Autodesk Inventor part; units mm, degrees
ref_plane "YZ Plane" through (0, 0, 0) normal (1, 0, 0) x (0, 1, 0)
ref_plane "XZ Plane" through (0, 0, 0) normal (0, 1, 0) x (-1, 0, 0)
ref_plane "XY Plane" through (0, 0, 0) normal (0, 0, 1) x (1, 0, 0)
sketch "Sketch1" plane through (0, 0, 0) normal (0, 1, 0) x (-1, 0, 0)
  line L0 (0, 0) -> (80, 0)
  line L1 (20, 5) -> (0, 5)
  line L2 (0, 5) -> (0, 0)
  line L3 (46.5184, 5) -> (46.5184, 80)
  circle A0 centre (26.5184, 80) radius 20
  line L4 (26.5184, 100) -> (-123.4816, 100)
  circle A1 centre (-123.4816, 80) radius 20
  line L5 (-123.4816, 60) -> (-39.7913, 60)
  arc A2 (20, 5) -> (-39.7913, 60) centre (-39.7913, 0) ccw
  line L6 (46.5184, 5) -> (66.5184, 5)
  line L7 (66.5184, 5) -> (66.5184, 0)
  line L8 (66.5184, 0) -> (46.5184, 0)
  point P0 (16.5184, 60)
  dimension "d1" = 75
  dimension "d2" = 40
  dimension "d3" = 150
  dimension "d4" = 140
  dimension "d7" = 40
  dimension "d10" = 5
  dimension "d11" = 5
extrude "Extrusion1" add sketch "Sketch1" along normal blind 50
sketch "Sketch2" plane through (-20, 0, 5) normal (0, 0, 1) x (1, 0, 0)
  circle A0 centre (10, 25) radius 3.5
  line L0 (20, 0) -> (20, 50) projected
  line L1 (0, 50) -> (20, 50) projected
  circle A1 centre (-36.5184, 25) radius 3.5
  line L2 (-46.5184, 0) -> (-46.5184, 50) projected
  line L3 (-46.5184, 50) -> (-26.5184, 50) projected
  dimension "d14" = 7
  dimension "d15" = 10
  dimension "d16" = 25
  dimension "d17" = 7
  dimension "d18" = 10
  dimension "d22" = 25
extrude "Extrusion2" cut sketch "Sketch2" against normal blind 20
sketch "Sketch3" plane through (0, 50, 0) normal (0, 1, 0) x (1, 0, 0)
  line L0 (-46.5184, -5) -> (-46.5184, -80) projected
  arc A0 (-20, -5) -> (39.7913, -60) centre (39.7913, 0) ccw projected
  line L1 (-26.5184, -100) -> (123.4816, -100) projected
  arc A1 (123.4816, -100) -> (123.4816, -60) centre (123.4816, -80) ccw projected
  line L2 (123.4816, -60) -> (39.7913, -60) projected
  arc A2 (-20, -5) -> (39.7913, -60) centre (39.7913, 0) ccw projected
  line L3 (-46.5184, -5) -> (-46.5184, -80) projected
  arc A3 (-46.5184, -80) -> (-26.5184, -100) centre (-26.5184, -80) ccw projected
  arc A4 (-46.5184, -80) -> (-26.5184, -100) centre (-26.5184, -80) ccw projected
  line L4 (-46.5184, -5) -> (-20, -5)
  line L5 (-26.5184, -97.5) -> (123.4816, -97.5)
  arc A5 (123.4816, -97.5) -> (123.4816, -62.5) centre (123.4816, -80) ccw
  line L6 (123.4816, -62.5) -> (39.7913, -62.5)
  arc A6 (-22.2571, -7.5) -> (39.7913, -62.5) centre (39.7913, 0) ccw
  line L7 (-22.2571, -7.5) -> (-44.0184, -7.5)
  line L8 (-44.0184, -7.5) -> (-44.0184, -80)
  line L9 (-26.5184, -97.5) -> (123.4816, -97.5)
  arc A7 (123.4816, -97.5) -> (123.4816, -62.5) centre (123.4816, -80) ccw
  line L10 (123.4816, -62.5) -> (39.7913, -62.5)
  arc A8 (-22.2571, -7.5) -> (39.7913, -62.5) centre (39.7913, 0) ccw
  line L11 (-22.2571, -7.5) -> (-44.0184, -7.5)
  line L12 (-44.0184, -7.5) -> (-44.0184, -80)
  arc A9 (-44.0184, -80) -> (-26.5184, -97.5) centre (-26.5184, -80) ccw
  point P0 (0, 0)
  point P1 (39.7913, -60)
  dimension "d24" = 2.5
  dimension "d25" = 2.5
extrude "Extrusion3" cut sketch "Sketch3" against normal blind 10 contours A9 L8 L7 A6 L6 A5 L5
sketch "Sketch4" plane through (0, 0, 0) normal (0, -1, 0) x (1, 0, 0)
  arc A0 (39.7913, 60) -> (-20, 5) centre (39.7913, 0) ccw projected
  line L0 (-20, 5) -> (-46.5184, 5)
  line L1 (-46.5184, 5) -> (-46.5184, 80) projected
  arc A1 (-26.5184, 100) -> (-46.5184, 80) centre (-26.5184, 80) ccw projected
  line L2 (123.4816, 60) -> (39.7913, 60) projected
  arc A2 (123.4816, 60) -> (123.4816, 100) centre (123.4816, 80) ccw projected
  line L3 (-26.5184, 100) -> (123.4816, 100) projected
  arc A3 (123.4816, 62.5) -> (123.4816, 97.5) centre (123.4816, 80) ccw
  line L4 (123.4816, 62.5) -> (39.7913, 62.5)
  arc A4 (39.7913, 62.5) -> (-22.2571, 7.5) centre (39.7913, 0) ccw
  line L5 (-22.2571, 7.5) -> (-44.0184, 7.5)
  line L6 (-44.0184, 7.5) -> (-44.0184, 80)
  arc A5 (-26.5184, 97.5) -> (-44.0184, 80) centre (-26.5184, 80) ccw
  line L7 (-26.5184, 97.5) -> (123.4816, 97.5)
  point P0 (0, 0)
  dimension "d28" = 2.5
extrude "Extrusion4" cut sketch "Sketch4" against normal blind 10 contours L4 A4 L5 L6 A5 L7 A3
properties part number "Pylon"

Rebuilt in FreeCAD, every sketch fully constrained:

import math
import FreeCAD as App
import Part
import Sketcher
from FreeCAD import Vector
Q = App.Units.Quantity

doc = App.newDocument("Part")
params = doc.addObject("Spreadsheet::Sheet", "Params")
for row, (alias, value) in enumerate([
    ("sketch1_radius", "20 mm"),
    ("sketch1_width", "150 mm"),
    ("sketch1_height", "5 mm"),
    ("sketch1_height2", "75 mm"),
    ("pad1_length", "50 mm"),
    ("sketch2_diameter", "7 mm"),
    ("pocket1_length", "20 mm"),
    ("sketch3_radius", "17.5 mm"),
    ("sketch3_radius2", "62.5 mm"),
    ("sketch3_width", "150 mm"),
    ("sketch3_height", "72.5 mm"),
    ("pocket2_length", "10 mm"),
    ("sketch4_radius", "17.5 mm"),
    ("sketch4_radius2", "62.5 mm"),
    ("sketch4_width", "150 mm"),
    ("sketch4_height", "72.5 mm"),
    ("pocket3_length", "10 mm"),
], start=1):
    params.set(f"A{row}", alias)
    params.set(f"B{row}", "=" + value)
    params.setAlias(f"B{row}", alias)

body = doc.addObject("PartDesign::Body", "Body")

# Sketch on XZ plane
sketch1 = doc.addObject("Sketcher::SketchObject", "Sketch")
body.addObject(sketch1)
sketch1.AttachmentSupport = (doc.XZ_Plane, [""])
sketch1.MapMode = "FlatFace"
sketch1.addGeometry([
    Part.LineSegment(Vector(0, 5, 0), Vector(0, 0, 0)),  # 0
    Part.LineSegment(Vector(0, 0, 0), Vector(-66.5184, 0, 0)),  # 1
    Part.LineSegment(Vector(-66.5184, 0, 0), Vector(-66.5184, 5, 0)),  # 2
    Part.LineSegment(Vector(-66.5184, 5, 0), Vector(-46.5184, 5, 0)),  # 3
    Part.LineSegment(Vector(-46.5184, 5, 0), Vector(-46.5184, 80, 0)),  # 4
    Part.ArcOfCircle(Part.Circle(Vector(-26.5184, 80, 0), Vector(0, 0, 1), 20), math.radians(90), math.radians(180)),  # 5
    Part.LineSegment(Vector(-26.5184, 100, 0), Vector(123.4816, 100, 0)),  # 6
    Part.ArcOfCircle(Part.Circle(Vector(123.4816, 80, 0), Vector(0, 0, 1), 20), math.radians(-90), math.radians(90)),  # 7
    Part.LineSegment(Vector(123.4816, 60, 0), Vector(39.7913, 60, 0)),  # 8
    Part.ArcOfCircle(Part.Circle(Vector(39.7913, 0, 0), Vector(0, 0, 1), 59.999996), math.radians(90), math.radians(175.219808)),  # 9
    Part.LineSegment(Vector(-20, 5, 0), Vector(0, 5, 0)),  # 10
], False)
sketch1.addConstraint([
    Sketcher.Constraint("Coincident", 0, 2, 1, 1),
    Sketcher.Constraint("Coincident", 1, 2, 2, 1),
    Sketcher.Constraint("Coincident", 2, 2, 3, 1),
    Sketcher.Constraint("Coincident", 3, 2, 4, 1),
    Sketcher.Constraint("Tangent", 4, 2, 5, 2),
    Sketcher.Constraint("Tangent", 5, 1, 6, 1),
    Sketcher.Constraint("Tangent", 6, 2, 7, 2),
    Sketcher.Constraint("Tangent", 7, 1, 8, 1),
    Sketcher.Constraint("Tangent", 8, 2, 9, 1),
    Sketcher.Constraint("Coincident", 9, 2, 10, 1),
    Sketcher.Constraint("Coincident", 10, 2, 0, 1),
    Sketcher.Constraint("Vertical", 0),
    Sketcher.Constraint("Horizontal", 1),
    Sketcher.Constraint("Vertical", 2),
    Sketcher.Constraint("Horizontal", 3),
    Sketcher.Constraint("Vertical", 4),
    Sketcher.Constraint("Horizontal", 6),
    Sketcher.Constraint("Horizontal", 8),
    Sketcher.Constraint("Horizontal", 10),
    Sketcher.Constraint("Coincident", 0, 2, -1, 1),
    Sketcher.Constraint("Equal", 5, 7),
    Sketcher.Constraint("PointOnObject", 9, 3, -1),
    Sketcher.Constraint("Horizontal", 3, 2, 9, 2),
    Sketcher.Constraint("Equal", 3, 10),
    Sketcher.Constraint("Radius", 5, Q("20 mm")),
    Sketcher.Constraint("DistanceX", 6, 1, 6, 2, Q("150 mm")),
    Sketcher.Constraint("DistanceY", 0, 2, 0, 1, Q("5 mm")),
    Sketcher.Constraint("DistanceY", 4, 1, 4, 2, Q("75 mm")),
    Sketcher.Constraint("DistanceX", 1, 2, 5, 3, Q("40 mm")),
    Sketcher.Constraint("DistanceX", 1, 2, 1, 1, Q("66.5184 mm")),
])
sketch1.setExpression("Constraints[24]", "Params.sketch1_radius")
sketch1.setExpression("Constraints[25]", "Params.sketch1_width")
sketch1.setExpression("Constraints[26]", "Params.sketch1_height")
sketch1.setExpression("Constraints[27]", "Params.sketch1_height2")
pad1 = doc.addObject("PartDesign::Pad", "Pad")
body.addObject(pad1)
pad1.Profile = sketch1
pad1.setExpression("Length", "Params.pad1_length")
pad1.Reversed = True

# Sketch on XY plane
sketch2 = doc.addObject("Sketcher::SketchObject", "Sketch001")
body.addObject(sketch2)
sketch2.AttachmentSupport = (doc.XY_Plane, [""])
sketch2.MapMode = "FlatFace"
sketch2.AttachmentOffset = App.Placement(Vector(0, 0, 5), App.Rotation())
sketch2.addGeometry([
    Part.Circle(Vector(-10, 25, 0), Vector(0, 0, 1), 3.5),
    Part.Circle(Vector(-56.5184, 25, 0), Vector(0, 0, 1), 3.5),
], False)
sketch2.addConstraint([
    Sketcher.Constraint("Equal", 0, 1),
    Sketcher.Constraint("Horizontal", 0, 3, 1, 3),
    Sketcher.Constraint("Diameter", 0, Q("7 mm")),
    Sketcher.Constraint("DistanceX", 0, 3, -1, 1, Q("10 mm")),
    Sketcher.Constraint("DistanceY", -1, 1, 0, 3, Q("25 mm")),
    Sketcher.Constraint("DistanceX", 1, 3, -1, 1, Q("56.5184 mm")),
])
sketch2.setExpression("Constraints[2]", "Params.sketch2_diameter")
pocket1 = doc.addObject("PartDesign::Pocket", "Pocket")
body.addObject(pocket1)
pocket1.Profile = sketch2
pocket1.setExpression("Length", "Params.pocket1_length")

# Sketch on XZ plane
sketch3 = doc.addObject("Sketcher::SketchObject", "Sketch002")
body.addObject(sketch3)
sketch3.AttachmentSupport = (doc.XZ_Plane, [""])
sketch3.MapMode = "FlatFace"
sketch3.AttachmentOffset = App.Placement(Vector(0, 0, -50), App.Rotation())
sketch3.addGeometry([
    Part.ArcOfCircle(Part.Circle(Vector(-26.5184, 80, 0), Vector(0, 0, 1), 17.5), math.radians(90), math.radians(180)),  # 0
    Part.LineSegment(Vector(-26.5184, 97.5, 0), Vector(123.4816, 97.5, 0)),  # 1
    Part.ArcOfCircle(Part.Circle(Vector(123.4816, 80, 0), Vector(0, 0, 1), 17.5), math.radians(-90), math.radians(90)),  # 2
    Part.LineSegment(Vector(123.4816, 62.5, 0), Vector(39.7913, 62.5, 0)),  # 3
    Part.ArcOfCircle(Part.Circle(Vector(39.7913, 0, 0), Vector(0, 0, 1), 62.500032), math.radians(90), math.radians(173.107901)),  # 4
    Part.LineSegment(Vector(-22.2571, 7.5, 0), Vector(-44.0184, 7.5, 0)),  # 5
    Part.LineSegment(Vector(-44.0184, 7.5, 0), Vector(-44.0184, 80, 0)),  # 6
], False)
sketch3.addConstraint([
    Sketcher.Constraint("Tangent", 0, 1, 1, 1),
    Sketcher.Constraint("Tangent", 1, 2, 2, 2),
    Sketcher.Constraint("Tangent", 2, 1, 3, 1),
    Sketcher.Constraint("Tangent", 3, 2, 4, 1),
    Sketcher.Constraint("Coincident", 4, 2, 5, 1),
    Sketcher.Constraint("Coincident", 5, 2, 6, 1),
    Sketcher.Constraint("Tangent", 6, 2, 0, 2),
    Sketcher.Constraint("Horizontal", 1),
    Sketcher.Constraint("Horizontal", 3),
    Sketcher.Constraint("Horizontal", 5),
    Sketcher.Constraint("Vertical", 6),
    Sketcher.Constraint("Equal", 0, 2),
    Sketcher.Constraint("PointOnObject", 4, 3, -1),
    Sketcher.Constraint("Radius", 0, Q("17.5 mm")),
    Sketcher.Constraint("Radius", 4, Q("62.5 mm")),
    Sketcher.Constraint("DistanceX", 1, 1, 1, 2, Q("150 mm")),
    Sketcher.Constraint("DistanceY", 6, 1, 6, 2, Q("72.5 mm")),
    Sketcher.Constraint("DistanceX", 3, 2, 3, 1, Q("83.6903 mm")),
    Sketcher.Constraint("DistanceX", 4, 2, -1, 1, Q("22.257 mm")),
])
sketch3.setExpression("Constraints[13]", "Params.sketch3_radius")
sketch3.setExpression("Constraints[14]", "Params.sketch3_radius2")
sketch3.setExpression("Constraints[15]", "Params.sketch3_width")
sketch3.setExpression("Constraints[16]", "Params.sketch3_height")
pocket2 = doc.addObject("PartDesign::Pocket", "Pocket001")
body.addObject(pocket2)
pocket2.Profile = sketch3
pocket2.setExpression("Length", "Params.pocket2_length")
pocket2.Reversed = True

# Sketch on XZ plane
sketch4 = doc.addObject("Sketcher::SketchObject", "Sketch003")
body.addObject(sketch4)
sketch4.AttachmentSupport = (doc.XZ_Plane, [""])
sketch4.MapMode = "FlatFace"
sketch4.addGeometry([
    Part.LineSegment(Vector(39.7913, 62.5, 0), Vector(123.4816, 62.5, 0)),  # 0
    Part.ArcOfCircle(Part.Circle(Vector(123.4816, 80, 0), Vector(0, 0, 1), 17.5), math.radians(-90), math.radians(90)),  # 1
    Part.LineSegment(Vector(123.4816, 97.5, 0), Vector(-26.5184, 97.5, 0)),  # 2
    Part.ArcOfCircle(Part.Circle(Vector(-26.5184, 80, 0), Vector(0, 0, 1), 17.5), math.radians(90), math.radians(180)),  # 3
    Part.LineSegment(Vector(-44.0184, 80, 0), Vector(-44.0184, 7.5, 0)),  # 4
    Part.LineSegment(Vector(-44.0184, 7.5, 0), Vector(-22.2571, 7.5, 0)),  # 5
    Part.ArcOfCircle(Part.Circle(Vector(39.7913, 0, 0), Vector(0, 0, 1), 62.5), math.radians(90), math.radians(173.107901)),  # 6
], False)
sketch4.addConstraint([
    Sketcher.Constraint("Tangent", 0, 2, 1, 1),
    Sketcher.Constraint("Tangent", 1, 2, 2, 1),
    Sketcher.Constraint("Tangent", 2, 2, 3, 1),
    Sketcher.Constraint("Tangent", 3, 2, 4, 1),
    Sketcher.Constraint("Coincident", 4, 2, 5, 1),
    Sketcher.Constraint("Coincident", 5, 2, 6, 2),
    Sketcher.Constraint("Tangent", 6, 1, 0, 1),
    Sketcher.Constraint("Horizontal", 0),
    Sketcher.Constraint("Horizontal", 2),
    Sketcher.Constraint("Vertical", 4),
    Sketcher.Constraint("Horizontal", 5),
    Sketcher.Constraint("Equal", 1, 3),
    Sketcher.Constraint("PointOnObject", 6, 3, -1),
    Sketcher.Constraint("Radius", 1, Q("17.5 mm")),
    Sketcher.Constraint("Radius", 6, Q("62.5 mm")),
    Sketcher.Constraint("DistanceX", 2, 2, 2, 1, Q("150 mm")),
    Sketcher.Constraint("DistanceY", 4, 2, 4, 1, Q("72.5 mm")),
    Sketcher.Constraint("DistanceX", 0, 1, 0, 2, Q("83.6903 mm")),
    Sketcher.Constraint("DistanceX", 5, 2, -1, 1, Q("22.257 mm")),
])
sketch4.setExpression("Constraints[13]", "Params.sketch4_radius")
sketch4.setExpression("Constraints[14]", "Params.sketch4_radius2")
sketch4.setExpression("Constraints[15]", "Params.sketch4_width")
sketch4.setExpression("Constraints[16]", "Params.sketch4_height")
pocket3 = doc.addObject("PartDesign::Pocket", "Pocket002")
body.addObject(pocket3)
pocket3.Profile = sketch4
pocket3.setExpression("Length", "Params.pocket3_length")

doc.recompute()
